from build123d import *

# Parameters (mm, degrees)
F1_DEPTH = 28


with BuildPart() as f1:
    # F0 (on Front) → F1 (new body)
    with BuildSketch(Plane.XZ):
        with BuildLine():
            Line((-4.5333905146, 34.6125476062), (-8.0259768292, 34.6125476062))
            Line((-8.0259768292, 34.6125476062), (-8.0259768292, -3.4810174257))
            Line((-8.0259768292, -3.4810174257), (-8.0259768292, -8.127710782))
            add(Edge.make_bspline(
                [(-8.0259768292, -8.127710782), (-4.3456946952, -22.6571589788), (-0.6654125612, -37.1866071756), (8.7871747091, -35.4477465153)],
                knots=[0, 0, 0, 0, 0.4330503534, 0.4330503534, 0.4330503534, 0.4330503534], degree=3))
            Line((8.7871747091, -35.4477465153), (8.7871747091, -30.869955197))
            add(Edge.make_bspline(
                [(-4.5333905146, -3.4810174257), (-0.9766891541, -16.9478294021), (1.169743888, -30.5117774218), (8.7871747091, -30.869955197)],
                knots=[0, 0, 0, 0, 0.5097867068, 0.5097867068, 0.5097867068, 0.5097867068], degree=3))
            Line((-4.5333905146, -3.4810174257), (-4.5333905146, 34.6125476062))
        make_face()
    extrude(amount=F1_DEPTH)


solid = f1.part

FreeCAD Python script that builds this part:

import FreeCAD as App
import Part
import Sketcher
Q = App.Units.Quantity

doc = App.newDocument("Part")
body = doc.addObject("PartDesign::Body", "Body")

# Sketch on XZ plane
sketch1 = body.newObject("Sketcher::SketchObject", "Sketch")
sketch1.AttachmentSupport = (doc.getObject("XZ_Plane"), [""])
sketch1.MapMode = "FlatFace"
sketch1.addGeometry([
    Part.LineSegment(App.Vector(-4.533391, 34.612548, 0), App.Vector(-8.025977, 34.612548, 0)),  # 0
    Part.LineSegment(App.Vector(-8.025977, 34.612548, 0), App.Vector(-8.025977, -8.127711, 0)),  # 1
    Part.BSplineCurve([App.Vector(-8.025977, -8.127711, 0), App.Vector(-4.345695, -22.657159, 0), App.Vector(-0.665413, -37.186607, 0), App.Vector(8.787175, -35.447747, 0)], [4, 4], [0, 0.433050353], False, 3, [1, 1, 1, 1], False),  # 2
    Part.LineSegment(App.Vector(8.787175, -35.447747, 0), App.Vector(8.787175, -30.869955, 0)),  # 3
    Part.BSplineCurve([App.Vector(-4.533391, -3.481017, 0), App.Vector(-0.976689, -16.947829, 0), App.Vector(1.169744, -30.511777, 0), App.Vector(8.787175, -30.869955, 0)], [4, 4], [0, 0.509786707], False, 3, [1, 1, 1, 1], False),  # 4
    Part.LineSegment(App.Vector(-4.533391, -3.481017, 0), App.Vector(-4.533391, 34.612548, 0)),  # 5
], False)
sketch1.addConstraint([
    Sketcher.Constraint("Block", 2),
    Sketcher.Constraint("Block", 4),
    Sketcher.Constraint("Coincident", 0, 2, 1, 1),
    Sketcher.Constraint("Coincident", 1, 2, 2, 1),
    Sketcher.Constraint("Coincident", 2, 2, 3, 1),
    Sketcher.Constraint("Coincident", 3, 2, 4, 2),
    Sketcher.Constraint("Coincident", 4, 1, 5, 1),
    Sketcher.Constraint("Coincident", 5, 2, 0, 1),
    Sketcher.Constraint("Horizontal", 0),
    Sketcher.Constraint("Vertical", 1),
    Sketcher.Constraint("Vertical", 5),
    Sketcher.Constraint("DistanceY", 1, 2, 1, 1, Q("42.740258 mm")),
])
pad1 = body.newObject("PartDesign::Pad", "Pad")
pad1.Profile = sketch1
pad1.Length = 28

doc.recompute()
